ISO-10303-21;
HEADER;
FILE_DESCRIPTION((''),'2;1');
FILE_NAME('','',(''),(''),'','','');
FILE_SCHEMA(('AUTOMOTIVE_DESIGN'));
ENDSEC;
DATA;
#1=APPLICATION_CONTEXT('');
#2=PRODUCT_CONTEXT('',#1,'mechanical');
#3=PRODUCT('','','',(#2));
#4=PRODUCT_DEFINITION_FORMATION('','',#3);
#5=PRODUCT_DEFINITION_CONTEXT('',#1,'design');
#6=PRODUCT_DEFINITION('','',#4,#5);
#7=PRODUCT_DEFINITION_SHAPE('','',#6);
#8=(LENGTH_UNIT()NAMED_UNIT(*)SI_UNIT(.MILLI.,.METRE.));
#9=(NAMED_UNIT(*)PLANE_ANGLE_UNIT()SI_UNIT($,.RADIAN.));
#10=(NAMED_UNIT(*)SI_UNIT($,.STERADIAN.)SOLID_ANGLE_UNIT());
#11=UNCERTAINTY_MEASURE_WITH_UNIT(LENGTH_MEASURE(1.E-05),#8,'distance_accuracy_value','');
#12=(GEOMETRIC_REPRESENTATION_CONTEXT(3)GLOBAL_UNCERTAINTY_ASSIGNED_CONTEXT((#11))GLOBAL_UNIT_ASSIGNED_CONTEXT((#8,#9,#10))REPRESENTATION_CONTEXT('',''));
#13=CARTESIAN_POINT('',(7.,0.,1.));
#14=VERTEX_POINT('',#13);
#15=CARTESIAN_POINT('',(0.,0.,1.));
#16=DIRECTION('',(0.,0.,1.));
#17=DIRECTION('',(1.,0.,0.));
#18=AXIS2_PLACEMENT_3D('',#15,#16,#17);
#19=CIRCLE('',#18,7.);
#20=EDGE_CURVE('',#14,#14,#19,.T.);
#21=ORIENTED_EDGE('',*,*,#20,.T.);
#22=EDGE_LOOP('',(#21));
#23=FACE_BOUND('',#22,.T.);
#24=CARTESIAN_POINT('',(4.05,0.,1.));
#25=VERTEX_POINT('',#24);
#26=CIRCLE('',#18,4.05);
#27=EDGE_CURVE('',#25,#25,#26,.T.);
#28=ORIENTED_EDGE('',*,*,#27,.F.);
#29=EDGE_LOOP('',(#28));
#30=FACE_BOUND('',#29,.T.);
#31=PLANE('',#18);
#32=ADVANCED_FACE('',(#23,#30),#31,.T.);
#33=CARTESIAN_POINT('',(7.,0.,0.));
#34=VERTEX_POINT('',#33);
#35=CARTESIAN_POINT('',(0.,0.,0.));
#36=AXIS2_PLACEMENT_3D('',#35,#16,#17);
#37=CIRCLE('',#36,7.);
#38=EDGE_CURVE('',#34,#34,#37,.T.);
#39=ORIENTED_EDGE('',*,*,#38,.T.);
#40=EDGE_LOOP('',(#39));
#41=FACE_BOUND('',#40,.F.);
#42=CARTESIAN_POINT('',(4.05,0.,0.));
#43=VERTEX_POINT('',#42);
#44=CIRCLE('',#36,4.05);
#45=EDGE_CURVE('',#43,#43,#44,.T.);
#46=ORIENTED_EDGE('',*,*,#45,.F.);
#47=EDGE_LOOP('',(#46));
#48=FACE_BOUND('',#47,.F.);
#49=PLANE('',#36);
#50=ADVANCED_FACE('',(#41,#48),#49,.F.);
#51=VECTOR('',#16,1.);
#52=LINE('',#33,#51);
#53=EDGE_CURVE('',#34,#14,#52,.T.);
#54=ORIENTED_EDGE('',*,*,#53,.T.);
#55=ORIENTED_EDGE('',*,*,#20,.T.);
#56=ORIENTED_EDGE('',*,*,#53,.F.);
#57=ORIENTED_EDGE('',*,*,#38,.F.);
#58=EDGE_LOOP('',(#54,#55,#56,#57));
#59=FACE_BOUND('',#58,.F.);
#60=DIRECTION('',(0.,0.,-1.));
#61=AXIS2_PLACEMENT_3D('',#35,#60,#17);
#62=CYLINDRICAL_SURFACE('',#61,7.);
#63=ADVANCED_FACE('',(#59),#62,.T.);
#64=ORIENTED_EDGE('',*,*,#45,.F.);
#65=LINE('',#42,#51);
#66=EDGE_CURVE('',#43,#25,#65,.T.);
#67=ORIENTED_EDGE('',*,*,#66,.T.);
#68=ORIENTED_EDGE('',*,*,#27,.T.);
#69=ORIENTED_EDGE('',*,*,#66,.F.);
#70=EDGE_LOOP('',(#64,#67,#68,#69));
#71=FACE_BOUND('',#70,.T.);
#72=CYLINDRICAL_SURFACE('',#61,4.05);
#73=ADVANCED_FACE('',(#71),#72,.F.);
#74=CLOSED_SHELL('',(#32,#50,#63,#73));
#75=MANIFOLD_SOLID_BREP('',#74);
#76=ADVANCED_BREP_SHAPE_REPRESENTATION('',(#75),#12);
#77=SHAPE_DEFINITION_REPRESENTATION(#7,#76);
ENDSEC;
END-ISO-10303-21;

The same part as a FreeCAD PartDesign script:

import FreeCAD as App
import Part
import Sketcher
from FreeCAD import Vector

doc = App.newDocument("Part")
body = doc.addObject("PartDesign::Body", "Body")

# Sketch on XY plane
sketch1 = doc.addObject("Sketcher::SketchObject", "Sketch")
body.addObject(sketch1)
sketch1.AttachmentSupport = (doc.XY_Plane, [""])
sketch1.MapMode = "FlatFace"
sketch1.addGeometry(Part.Circle(Vector(0, 0, 0), Vector(0, 0, 1), 7), False)
sketch1.addGeometry(Part.Circle(Vector(0, 0, 0), Vector(0, 0, 1), 4), False)
sketch1.addConstraint(Sketcher.Constraint("Coincident", 0, 3, -1, 1))
sketch1.addConstraint(Sketcher.Constraint("Coincident", 1, 3, -1, 1))
sketch1.addConstraint(Sketcher.Constraint("Diameter", 0, 14.0))
sketch1.addConstraint(Sketcher.Constraint("Diameter", 1, 8.1))
pad1 = doc.addObject("PartDesign::Pad", "Pad")
body.addObject(pad1)
pad1.Profile = sketch1
pad1.Length = 1

doc.recompute()
